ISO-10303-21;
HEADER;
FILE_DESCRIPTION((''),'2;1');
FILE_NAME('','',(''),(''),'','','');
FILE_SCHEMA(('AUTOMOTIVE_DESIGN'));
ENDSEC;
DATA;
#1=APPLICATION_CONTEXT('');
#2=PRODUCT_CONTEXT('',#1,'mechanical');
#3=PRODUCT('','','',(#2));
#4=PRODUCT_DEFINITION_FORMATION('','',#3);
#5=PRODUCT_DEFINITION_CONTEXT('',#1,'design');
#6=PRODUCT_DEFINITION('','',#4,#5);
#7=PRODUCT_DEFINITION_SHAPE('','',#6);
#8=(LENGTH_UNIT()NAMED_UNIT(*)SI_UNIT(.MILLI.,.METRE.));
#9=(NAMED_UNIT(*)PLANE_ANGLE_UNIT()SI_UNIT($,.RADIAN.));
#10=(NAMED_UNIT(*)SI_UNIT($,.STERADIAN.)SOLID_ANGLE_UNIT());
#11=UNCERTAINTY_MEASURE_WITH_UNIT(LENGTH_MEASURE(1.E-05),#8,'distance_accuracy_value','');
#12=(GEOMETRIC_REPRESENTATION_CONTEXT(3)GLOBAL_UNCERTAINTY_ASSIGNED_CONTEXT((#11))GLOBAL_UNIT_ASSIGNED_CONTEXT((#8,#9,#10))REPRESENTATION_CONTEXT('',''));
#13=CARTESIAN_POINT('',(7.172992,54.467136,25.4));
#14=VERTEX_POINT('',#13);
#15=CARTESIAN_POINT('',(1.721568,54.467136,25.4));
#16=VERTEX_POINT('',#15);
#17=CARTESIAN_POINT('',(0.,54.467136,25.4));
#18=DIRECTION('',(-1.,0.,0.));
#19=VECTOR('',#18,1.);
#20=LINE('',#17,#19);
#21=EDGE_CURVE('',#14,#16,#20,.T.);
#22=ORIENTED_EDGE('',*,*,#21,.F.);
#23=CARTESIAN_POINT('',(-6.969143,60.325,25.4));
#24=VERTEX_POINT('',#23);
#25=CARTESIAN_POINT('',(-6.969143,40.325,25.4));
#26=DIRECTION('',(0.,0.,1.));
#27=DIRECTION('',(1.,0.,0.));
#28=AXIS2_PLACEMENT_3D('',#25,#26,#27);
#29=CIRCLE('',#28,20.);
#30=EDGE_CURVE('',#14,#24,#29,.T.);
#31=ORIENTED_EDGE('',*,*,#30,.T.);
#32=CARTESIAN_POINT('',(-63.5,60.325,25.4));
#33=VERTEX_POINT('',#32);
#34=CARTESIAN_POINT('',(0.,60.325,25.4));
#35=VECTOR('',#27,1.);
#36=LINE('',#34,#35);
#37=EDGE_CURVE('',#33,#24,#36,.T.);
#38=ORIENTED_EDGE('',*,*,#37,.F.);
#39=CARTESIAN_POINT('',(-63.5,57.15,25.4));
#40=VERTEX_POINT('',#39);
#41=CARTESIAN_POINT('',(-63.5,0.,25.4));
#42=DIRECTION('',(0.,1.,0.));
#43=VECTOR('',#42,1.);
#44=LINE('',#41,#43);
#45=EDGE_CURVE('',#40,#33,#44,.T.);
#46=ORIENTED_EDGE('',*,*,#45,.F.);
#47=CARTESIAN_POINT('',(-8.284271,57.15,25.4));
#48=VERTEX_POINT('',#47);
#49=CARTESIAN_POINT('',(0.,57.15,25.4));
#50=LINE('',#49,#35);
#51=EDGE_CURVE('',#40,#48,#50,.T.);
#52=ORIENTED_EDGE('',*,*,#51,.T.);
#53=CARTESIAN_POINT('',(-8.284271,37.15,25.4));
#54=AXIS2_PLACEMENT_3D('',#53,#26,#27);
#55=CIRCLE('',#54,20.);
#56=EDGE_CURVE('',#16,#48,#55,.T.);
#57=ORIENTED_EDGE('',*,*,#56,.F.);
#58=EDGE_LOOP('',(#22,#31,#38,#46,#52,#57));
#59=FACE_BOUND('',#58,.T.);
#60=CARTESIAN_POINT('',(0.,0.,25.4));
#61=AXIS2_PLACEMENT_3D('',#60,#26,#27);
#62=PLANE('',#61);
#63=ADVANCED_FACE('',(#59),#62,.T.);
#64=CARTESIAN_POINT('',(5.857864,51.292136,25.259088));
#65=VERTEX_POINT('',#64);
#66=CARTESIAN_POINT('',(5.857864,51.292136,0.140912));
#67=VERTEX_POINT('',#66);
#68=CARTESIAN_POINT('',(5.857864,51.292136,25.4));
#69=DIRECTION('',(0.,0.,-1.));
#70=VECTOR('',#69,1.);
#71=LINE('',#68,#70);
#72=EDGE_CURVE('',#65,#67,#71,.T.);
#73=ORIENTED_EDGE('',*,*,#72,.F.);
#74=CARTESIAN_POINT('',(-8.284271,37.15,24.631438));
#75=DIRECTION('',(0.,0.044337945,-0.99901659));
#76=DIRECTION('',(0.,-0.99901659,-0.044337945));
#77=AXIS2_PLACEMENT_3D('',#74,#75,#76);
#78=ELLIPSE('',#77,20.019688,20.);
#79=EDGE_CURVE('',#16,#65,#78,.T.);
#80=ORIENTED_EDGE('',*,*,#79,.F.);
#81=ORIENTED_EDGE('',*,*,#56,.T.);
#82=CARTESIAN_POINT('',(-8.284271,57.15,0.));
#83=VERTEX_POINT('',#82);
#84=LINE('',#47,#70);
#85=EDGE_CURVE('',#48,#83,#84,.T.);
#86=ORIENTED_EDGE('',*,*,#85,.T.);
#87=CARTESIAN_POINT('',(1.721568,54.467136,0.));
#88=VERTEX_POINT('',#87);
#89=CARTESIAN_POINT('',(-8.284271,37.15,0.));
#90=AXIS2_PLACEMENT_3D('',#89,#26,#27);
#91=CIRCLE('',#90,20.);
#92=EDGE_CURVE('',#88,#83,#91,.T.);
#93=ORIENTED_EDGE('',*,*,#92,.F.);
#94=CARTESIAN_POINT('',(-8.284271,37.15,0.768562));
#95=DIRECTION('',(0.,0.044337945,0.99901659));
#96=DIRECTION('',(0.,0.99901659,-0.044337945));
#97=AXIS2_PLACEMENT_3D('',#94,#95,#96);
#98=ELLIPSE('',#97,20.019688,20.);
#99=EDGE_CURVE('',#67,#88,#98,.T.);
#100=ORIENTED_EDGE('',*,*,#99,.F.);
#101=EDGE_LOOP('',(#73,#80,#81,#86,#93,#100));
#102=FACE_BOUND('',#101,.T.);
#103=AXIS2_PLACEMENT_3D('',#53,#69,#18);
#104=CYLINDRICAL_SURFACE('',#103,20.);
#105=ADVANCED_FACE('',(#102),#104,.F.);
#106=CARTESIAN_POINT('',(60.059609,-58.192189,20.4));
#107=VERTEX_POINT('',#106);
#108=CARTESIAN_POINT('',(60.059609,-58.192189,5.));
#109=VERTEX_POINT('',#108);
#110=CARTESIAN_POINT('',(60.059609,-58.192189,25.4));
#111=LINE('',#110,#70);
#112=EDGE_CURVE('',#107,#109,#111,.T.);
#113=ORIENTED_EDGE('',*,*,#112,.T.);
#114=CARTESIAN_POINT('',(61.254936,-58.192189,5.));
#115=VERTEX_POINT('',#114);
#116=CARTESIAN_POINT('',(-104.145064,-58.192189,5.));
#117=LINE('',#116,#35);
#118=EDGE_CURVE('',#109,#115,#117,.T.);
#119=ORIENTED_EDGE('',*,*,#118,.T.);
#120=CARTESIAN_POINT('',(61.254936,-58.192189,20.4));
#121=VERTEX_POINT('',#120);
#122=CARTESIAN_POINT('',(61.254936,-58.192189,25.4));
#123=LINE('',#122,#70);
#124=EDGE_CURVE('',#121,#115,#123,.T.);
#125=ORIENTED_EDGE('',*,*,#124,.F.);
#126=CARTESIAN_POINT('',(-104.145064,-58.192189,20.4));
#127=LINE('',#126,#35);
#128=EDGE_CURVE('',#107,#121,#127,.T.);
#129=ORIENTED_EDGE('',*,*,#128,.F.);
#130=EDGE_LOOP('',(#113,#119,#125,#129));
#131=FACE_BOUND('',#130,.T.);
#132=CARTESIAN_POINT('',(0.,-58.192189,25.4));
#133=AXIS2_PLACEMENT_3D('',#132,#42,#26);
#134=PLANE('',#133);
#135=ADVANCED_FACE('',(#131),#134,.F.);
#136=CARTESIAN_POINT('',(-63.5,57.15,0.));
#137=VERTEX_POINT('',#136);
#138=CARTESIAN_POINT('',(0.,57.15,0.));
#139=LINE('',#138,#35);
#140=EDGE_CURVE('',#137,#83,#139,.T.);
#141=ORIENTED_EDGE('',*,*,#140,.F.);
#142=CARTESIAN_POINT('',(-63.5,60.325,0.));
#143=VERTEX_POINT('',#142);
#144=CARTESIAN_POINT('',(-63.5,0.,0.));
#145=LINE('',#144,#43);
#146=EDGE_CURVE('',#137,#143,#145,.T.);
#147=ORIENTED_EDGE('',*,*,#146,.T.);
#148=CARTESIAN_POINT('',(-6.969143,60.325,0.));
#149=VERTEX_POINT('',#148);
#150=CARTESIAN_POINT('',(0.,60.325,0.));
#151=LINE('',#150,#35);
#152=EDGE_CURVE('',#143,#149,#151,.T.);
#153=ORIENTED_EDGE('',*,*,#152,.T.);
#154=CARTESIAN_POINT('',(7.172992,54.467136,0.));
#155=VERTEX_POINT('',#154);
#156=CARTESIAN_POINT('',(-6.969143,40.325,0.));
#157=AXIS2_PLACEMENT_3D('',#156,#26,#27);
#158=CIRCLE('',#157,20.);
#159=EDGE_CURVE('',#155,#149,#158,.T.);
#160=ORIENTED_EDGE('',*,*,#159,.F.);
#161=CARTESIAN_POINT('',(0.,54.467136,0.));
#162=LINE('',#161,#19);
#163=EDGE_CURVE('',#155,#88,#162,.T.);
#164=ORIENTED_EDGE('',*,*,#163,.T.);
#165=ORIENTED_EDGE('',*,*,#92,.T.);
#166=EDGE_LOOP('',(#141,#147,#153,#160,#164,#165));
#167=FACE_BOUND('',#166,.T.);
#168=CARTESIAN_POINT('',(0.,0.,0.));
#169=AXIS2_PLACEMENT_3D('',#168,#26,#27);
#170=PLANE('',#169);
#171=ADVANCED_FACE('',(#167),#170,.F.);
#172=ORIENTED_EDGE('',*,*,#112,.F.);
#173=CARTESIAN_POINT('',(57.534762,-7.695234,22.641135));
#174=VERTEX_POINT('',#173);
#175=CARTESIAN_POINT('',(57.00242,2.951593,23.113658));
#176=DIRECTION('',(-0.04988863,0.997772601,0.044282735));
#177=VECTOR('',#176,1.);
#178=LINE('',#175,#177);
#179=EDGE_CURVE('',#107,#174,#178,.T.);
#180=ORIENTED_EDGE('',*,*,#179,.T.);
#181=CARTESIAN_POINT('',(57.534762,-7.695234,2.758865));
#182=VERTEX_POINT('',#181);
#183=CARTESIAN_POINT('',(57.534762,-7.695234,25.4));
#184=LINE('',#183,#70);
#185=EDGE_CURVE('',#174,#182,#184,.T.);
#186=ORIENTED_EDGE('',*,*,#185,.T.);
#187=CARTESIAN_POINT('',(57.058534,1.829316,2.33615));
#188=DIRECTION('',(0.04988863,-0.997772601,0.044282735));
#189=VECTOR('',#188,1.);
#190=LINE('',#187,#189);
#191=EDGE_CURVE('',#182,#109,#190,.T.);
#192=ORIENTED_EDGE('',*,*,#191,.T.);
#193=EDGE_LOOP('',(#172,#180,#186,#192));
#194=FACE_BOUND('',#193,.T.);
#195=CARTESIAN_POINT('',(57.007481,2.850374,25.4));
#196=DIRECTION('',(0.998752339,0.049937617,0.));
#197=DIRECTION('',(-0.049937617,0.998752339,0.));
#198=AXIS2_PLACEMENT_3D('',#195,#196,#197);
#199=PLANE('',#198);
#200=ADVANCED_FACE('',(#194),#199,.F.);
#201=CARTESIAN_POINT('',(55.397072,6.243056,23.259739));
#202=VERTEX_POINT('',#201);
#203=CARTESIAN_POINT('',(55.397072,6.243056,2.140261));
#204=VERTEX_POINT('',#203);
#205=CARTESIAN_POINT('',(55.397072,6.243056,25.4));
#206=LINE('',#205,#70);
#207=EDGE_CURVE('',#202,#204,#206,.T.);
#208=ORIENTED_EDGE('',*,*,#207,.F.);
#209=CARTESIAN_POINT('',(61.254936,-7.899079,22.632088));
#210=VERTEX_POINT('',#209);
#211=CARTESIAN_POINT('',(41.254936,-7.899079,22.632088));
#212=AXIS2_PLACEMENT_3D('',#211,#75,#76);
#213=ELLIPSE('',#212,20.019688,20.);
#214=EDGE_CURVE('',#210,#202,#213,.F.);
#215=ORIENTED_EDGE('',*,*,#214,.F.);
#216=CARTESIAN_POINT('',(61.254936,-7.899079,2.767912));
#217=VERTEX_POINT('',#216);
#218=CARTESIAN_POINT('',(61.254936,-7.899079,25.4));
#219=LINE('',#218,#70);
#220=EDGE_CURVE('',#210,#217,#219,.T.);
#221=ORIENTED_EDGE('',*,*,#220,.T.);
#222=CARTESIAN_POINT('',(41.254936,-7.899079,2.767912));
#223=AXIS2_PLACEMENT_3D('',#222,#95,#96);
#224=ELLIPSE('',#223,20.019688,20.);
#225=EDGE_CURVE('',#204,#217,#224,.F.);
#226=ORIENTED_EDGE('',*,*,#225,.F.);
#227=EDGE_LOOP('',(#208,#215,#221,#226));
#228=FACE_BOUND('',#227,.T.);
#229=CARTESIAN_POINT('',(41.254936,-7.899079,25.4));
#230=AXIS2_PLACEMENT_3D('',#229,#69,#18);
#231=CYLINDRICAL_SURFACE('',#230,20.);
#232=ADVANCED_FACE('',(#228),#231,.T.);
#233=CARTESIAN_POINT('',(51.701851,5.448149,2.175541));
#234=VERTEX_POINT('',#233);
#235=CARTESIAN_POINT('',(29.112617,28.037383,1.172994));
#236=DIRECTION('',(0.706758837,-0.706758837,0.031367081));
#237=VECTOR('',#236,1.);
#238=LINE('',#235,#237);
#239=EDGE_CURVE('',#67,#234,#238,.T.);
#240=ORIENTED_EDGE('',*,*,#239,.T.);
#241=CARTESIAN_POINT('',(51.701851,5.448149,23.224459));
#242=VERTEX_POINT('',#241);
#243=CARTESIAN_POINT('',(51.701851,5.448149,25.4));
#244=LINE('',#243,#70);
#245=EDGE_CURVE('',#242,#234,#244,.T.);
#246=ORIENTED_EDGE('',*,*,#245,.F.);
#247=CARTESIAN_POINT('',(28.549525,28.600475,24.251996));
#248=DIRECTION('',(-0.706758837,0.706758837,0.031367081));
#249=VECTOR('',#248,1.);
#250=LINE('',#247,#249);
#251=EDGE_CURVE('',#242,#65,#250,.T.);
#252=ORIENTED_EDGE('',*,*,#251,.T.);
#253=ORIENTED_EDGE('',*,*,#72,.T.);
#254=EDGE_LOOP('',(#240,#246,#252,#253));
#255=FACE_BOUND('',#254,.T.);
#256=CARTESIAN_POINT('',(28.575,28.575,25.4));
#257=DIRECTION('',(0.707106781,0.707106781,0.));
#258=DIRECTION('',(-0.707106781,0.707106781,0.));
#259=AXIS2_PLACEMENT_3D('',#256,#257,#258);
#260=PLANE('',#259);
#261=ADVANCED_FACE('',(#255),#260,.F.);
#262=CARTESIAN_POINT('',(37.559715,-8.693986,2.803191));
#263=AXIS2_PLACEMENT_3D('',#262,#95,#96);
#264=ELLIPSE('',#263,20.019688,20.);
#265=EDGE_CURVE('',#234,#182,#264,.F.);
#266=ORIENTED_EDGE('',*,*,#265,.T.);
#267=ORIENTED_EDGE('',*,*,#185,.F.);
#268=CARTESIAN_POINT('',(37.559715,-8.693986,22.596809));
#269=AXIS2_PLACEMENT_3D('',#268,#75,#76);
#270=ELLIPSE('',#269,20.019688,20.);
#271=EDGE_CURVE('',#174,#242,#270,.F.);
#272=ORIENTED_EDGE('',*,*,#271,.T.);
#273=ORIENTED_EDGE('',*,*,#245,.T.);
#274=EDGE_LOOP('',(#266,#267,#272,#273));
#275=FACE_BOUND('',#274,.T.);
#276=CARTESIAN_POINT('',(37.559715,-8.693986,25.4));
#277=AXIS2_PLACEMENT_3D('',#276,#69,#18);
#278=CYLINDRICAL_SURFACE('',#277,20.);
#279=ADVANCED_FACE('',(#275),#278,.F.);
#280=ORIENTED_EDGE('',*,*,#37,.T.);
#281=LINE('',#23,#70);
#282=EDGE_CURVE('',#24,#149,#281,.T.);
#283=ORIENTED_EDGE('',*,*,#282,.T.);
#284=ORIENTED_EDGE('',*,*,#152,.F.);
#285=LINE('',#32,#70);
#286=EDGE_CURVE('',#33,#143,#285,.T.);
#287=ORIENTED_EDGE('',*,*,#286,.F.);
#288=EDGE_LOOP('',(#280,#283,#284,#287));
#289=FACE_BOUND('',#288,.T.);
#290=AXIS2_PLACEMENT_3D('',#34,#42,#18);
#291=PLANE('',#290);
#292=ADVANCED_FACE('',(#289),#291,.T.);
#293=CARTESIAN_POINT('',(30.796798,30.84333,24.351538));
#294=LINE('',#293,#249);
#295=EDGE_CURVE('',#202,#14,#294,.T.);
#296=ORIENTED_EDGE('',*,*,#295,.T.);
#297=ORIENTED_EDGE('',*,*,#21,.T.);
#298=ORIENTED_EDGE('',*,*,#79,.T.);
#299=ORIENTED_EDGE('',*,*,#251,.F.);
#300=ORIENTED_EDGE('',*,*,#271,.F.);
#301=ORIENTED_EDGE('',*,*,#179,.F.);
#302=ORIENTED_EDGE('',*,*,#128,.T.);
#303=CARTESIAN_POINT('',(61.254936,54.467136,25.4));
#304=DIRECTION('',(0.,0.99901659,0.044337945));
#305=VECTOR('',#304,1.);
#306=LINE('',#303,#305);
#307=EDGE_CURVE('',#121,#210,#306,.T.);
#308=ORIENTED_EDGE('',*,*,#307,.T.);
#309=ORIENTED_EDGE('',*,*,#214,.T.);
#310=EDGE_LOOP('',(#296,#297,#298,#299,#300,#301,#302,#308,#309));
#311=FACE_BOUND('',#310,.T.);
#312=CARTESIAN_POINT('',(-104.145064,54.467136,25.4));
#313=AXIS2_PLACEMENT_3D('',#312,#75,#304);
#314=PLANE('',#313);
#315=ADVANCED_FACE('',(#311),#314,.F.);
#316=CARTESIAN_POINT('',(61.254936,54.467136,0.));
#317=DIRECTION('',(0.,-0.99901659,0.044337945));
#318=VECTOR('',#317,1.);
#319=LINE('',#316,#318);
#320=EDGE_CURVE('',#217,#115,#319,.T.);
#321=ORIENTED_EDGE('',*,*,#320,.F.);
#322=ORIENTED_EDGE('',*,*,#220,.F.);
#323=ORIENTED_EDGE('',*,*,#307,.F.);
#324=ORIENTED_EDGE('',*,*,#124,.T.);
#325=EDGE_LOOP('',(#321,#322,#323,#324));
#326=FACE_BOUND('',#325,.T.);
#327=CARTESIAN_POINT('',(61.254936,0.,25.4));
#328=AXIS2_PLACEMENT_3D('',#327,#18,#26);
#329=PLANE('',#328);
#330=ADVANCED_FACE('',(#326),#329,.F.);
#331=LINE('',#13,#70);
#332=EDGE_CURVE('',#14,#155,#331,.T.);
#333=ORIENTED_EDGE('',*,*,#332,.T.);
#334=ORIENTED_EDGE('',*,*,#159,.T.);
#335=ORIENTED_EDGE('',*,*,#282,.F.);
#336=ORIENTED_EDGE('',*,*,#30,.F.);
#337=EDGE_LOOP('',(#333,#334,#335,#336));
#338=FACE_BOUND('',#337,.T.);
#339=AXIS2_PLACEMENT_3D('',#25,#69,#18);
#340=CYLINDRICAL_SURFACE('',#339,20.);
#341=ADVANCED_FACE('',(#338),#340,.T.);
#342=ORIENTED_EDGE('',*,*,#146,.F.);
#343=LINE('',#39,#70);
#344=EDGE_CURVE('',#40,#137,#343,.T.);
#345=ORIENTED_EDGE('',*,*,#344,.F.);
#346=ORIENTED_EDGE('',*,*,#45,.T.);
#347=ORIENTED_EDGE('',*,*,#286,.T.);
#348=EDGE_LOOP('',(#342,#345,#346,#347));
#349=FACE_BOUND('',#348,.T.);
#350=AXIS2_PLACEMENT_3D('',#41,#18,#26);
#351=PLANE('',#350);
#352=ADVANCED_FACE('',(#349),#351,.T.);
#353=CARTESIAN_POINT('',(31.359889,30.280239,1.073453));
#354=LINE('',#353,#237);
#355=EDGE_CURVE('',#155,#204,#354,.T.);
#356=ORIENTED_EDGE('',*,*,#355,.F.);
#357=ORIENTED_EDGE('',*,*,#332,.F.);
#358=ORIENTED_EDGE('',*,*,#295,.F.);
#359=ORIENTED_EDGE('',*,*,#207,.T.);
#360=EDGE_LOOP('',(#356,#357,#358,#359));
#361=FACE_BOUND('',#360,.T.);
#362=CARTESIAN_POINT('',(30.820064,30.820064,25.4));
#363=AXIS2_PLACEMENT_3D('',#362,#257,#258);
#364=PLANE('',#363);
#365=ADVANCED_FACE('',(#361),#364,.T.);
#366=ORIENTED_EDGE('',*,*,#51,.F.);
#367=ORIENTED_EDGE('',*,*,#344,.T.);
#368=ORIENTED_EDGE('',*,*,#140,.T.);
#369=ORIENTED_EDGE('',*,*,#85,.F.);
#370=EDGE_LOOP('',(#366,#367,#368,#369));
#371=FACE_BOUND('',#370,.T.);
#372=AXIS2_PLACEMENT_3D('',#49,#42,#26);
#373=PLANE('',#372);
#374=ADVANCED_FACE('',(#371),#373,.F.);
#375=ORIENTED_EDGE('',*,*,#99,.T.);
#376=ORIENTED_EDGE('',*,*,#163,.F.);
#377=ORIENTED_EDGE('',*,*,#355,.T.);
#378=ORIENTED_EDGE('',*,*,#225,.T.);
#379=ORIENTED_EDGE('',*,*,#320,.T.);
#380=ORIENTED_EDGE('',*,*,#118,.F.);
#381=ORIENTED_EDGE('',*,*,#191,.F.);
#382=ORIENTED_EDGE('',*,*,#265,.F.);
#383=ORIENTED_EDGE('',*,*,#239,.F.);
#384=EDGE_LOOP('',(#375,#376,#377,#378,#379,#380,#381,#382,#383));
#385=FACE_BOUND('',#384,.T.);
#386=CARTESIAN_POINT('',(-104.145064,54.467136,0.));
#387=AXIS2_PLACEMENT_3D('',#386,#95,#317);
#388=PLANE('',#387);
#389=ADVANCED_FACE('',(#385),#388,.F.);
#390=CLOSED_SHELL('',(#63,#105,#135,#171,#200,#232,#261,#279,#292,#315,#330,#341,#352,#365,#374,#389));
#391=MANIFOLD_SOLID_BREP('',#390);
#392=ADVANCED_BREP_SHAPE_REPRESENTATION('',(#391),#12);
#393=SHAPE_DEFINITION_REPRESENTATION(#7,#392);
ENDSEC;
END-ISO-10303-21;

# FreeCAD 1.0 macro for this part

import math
import FreeCAD as App
import Part
import Sketcher

V = App.Vector
Q = App.Units.Quantity


def add_polygon(sketch, points):
    """Adds a closed chain of lines whose ends are joined by coincident constraints."""
    first, n = sketch.GeometryCount, len(points)
    for a, b in zip(points, points[1:] + points[:1]):
        sketch.addGeometry(Part.LineSegment(App.Vector(*a, 0), App.Vector(*b, 0)), False)
    for i in range(n):
        sketch.addConstraint(Sketcher.Constraint("Coincident", first + i, 2, first + (i + 1) % n, 1))

doc = App.newDocument("Part")
body = doc.addObject("PartDesign::Body", "Body")

# Sketch on XY plane
sketch1 = body.newObject("Sketcher::SketchObject", "Sketch")
sketch1.AttachmentSupport = (doc.getObject("XY_Plane"), [""])
sketch1.MapMode = "FlatFace"
sketch1.addGeometry([
    Part.ArcOfCircle(Part.Circle(V(-8.3, 37.1, 0), V(0, 0, 1), 20), math.radians(45), math.radians(90)),  # 0
    Part.LineSegment(V(5.9, 51.3, 0), V(51.7, 5.4, 0)),  # 1
    Part.ArcOfCircle(Part.Circle(V(37.6, -8.7, 0), V(0, 0, 1), 20), math.radians(3), math.radians(45)),  # 2
    Part.LineSegment(V(57.5, -7.7, 0), V(60.1, -58.2, 0)),  # 3
    Part.LineSegment(V(60.1, -58.2, 0), V(61.3, -58.2, 0)),  # 4
    Part.LineSegment(V(61.3, -58.2, 0), V(61.3, -7.9, 0)),  # 5
    Part.ArcOfCircle(Part.Circle(V(41.3, -7.9, 0), V(0, 0, 1), 20), math.radians(0), math.radians(45)),  # 6
    Part.LineSegment(V(55.4, 6.2, 0), V(54.9, 6.7, 0)),  # 7
    Part.LineSegment(V(54.9, 6.7, 0), V(7.2, 54.5, 0)),  # 8
    Part.ArcOfCircle(Part.Circle(V(-7, 40.3, 0), V(0, 0, 1), 20), math.radians(45), math.radians(90)),  # 9
    Part.LineSegment(V(-7, 60.3, 0), V(-63.5, 60.3, 0)),  # 10
    Part.LineSegment(V(-63.5, 60.3, 0), V(-63.5, 57.1, 0)),  # 11
    Part.LineSegment(V(-63.5, 57.1, 0), V(-8.3, 57.1, 0)),  # 12
], False)
sketch1.addConstraint([
    Sketcher.Constraint("Tangent", 0, 1, 1, 1),
    Sketcher.Constraint("Tangent", 1, 2, 2, 2),
    Sketcher.Constraint("Tangent", 2, 1, 3, 1),
    Sketcher.Constraint("Coincident", 3, 2, 4, 1),
    Sketcher.Constraint("Coincident", 4, 2, 5, 1),
    Sketcher.Constraint("Tangent", 5, 2, 6, 1),
    Sketcher.Constraint("Tangent", 6, 2, 7, 1),
    Sketcher.Constraint("Coincident", 7, 2, 8, 1),
    Sketcher.Constraint("Tangent", 8, 2, 9, 1),
    Sketcher.Constraint("Tangent", 9, 2, 10, 1),
    Sketcher.Constraint("Coincident", 10, 2, 11, 1),
    Sketcher.Constraint("Coincident", 11, 2, 12, 1),
    Sketcher.Constraint("Tangent", 12, 2, 0, 2),
    Sketcher.Constraint("Horizontal", 4),
    Sketcher.Constraint("Vertical", 5),
    Sketcher.Constraint("Horizontal", 10),
    Sketcher.Constraint("Vertical", 11),
    Sketcher.Constraint("Horizontal", 12),
    Sketcher.Constraint("Equal", 0, 2),
    Sketcher.Constraint("Equal", 2, 6),
    Sketcher.Constraint("Equal", 6, 9),
    Sketcher.Constraint("Parallel", 1, 7),
    Sketcher.Constraint("Parallel", 7, 8),
    Sketcher.Constraint("Radius", 0, Q("20 mm")),
    Sketcher.Constraint("Angle", 1, Q("-45 deg")),
    Sketcher.Constraint("DistanceX", 10, 2, -1, 1, Q("63.5 mm")),
    Sketcher.Constraint("DistanceY", 11, 2, 11, 1, Q("3.175 mm")),
    Sketcher.Constraint("DistanceY", -1, 1, 0, 3, Q("37.15 mm")),
    Sketcher.Constraint("DistanceX", 7, 2, 5, 2, Q("6.35 mm")),
    Sketcher.Constraint("DistanceX", 12, 1, 12, 2, Q("55.215729 mm")),
    Sketcher.Constraint("DistanceY", 5, 1, 5, 2, Q("50.29311 mm")),
    Sketcher.Constraint("Distance", 8, Q("67.503162 mm")),
    Sketcher.Constraint("DistanceX", 4, 1, 4, 2, Q("1.195327 mm")),
    Sketcher.Constraint("DistanceX", 10, 2, 10, 1, Q("56.530857 mm")),
    Sketcher.Constraint("DistanceX", -1, 1, 1, 2, Q("51.701851 mm")),
])
pad1 = body.newObject("PartDesign::Pad", "Pad")
pad1.Profile = sketch1
pad1.Length = 25.4

# Sketch on YZ plane
sketch2 = body.newObject("Sketcher::SketchObject", "Sketch001")
sketch2.AttachmentSupport = (doc.getObject("YZ_Plane"), [""])
sketch2.MapMode = "FlatFace"
sketch2.AttachmentOffset = App.Placement(V(0, 0, 61.254936), App.Rotation())
add_polygon(sketch2, [(-58, 20), (54, 25), (-60, 54)])  # lines 0-2
add_polygon(sketch2, [(54, 0), (-58, 5), (-58, -16)])  # lines 3-5
sketch2.addConstraint([
    Sketcher.Constraint("Vertical", 4),
    Sketcher.Constraint("PointOnObject", 5, 2, -1),
    Sketcher.Constraint("Perpendicular", 0, 2),
    Sketcher.Constraint("Vertical", 2, 2, 3, 2),
    Sketcher.Constraint("Vertical", 0, 2, 5, 2),
    Sketcher.Constraint("Equal", 0, 3),
    Sketcher.Constraint("DistanceY", -1, 1, 3, 2, Q("5 mm")),
    Sketcher.Constraint("DistanceY", -1, 1, 0, 2, Q("25.4 mm")),
    Sketcher.Constraint("DistanceY", 4, 2, 4, 1, Q("21.325141 mm")),
    Sketcher.Constraint("Distance", 1, Q("117.657731 mm")),
    Sketcher.Constraint("DistanceX", 2, 2, -1, 1, Q("58.192189 mm")),
    Sketcher.Constraint("DistanceX", 1, 2, 0, 2, Q("114.14727 mm")),
])
pocket1 = body.newObject("PartDesign::Pocket", "Pocket")
pocket1.Profile = sketch2
pocket1.Length = 165.4

doc.recompute()
